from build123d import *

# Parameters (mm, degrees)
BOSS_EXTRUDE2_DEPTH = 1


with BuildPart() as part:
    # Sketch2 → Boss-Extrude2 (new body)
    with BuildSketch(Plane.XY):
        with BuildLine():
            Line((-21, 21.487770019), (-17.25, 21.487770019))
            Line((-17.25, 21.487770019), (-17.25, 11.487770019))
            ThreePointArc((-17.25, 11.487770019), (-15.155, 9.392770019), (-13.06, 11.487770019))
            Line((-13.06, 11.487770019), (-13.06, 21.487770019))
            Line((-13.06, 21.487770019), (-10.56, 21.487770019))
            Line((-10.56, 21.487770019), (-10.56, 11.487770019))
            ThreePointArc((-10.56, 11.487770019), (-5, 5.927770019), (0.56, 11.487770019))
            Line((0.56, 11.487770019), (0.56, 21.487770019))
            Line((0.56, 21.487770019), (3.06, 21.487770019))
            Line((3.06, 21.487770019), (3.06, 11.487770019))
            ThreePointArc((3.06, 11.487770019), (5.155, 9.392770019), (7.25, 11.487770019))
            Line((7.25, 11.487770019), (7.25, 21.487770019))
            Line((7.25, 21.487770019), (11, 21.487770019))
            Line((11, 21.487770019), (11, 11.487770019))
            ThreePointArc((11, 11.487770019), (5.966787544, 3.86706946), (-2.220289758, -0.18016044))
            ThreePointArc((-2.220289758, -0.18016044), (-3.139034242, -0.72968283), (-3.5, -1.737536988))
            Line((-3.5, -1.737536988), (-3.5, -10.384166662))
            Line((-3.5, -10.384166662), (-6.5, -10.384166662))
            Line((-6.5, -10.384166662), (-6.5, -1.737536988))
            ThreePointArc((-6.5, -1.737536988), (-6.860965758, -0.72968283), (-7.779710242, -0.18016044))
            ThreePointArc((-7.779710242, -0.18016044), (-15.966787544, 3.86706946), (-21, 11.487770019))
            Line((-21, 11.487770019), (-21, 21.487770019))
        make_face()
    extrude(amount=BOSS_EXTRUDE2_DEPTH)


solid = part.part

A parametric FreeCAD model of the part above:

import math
import FreeCAD as App
import Part
import Sketcher
from FreeCAD import Vector

doc = App.newDocument("Part")
body = doc.addObject("PartDesign::Body", "Body")

# Sketch on XY plane
sketch1 = doc.addObject("Sketcher::SketchObject", "Sketch")
body.addObject(sketch1)
sketch1.AttachmentSupport = (doc.XY_Plane, [""])
sketch1.MapMode = "FlatFace"
sketch1.addGeometry(Part.LineSegment(Vector(-17.2, 21.5, 0), Vector(-21, 21.5, 0)), False)
sketch1.addGeometry(Part.LineSegment(Vector(-21, 21.5, 0), Vector(-21, 11.5, 0)), False)
sketch1.addGeometry(Part.ArcOfCircle(Part.Circle(Vector(-4.4, 17, 0), Vector(0, 0, 1), 17.5), math.radians(-162), math.radians(-101)), False)
sketch1.addGeometry(Part.ArcOfCircle(Part.Circle(Vector(-8.1, -1.7, 0), Vector(0, 0, 1), 1.6), math.radians(0), math.radians(79)), False)
sketch1.addGeometry(Part.LineSegment(Vector(-6.5, -1.7, 0), Vector(-6.5, -10.4, 0)), False)
sketch1.addGeometry(Part.LineSegment(Vector(-6.5, -10.4, 0), Vector(-3.5, -10.4, 0)), False)
sketch1.addGeometry(Part.LineSegment(Vector(-3.5, -10.4, 0), Vector(-3.5, -1.7, 0)), False)
sketch1.addGeometry(Part.ArcOfCircle(Part.Circle(Vector(-1.9, -1.7, 0), Vector(0, 0, 1), 1.6), math.radians(101), math.radians(180)), False)
sketch1.addGeometry(Part.ArcOfCircle(Part.Circle(Vector(-5.6, 17, 0), Vector(0, 0, 1), 17.5), math.radians(-79), math.radians(-18)), False)
sketch1.addGeometry(Part.LineSegment(Vector(11, 11.5, 0), Vector(11, 21.5, 0)), False)
sketch1.addGeometry(Part.LineSegment(Vector(11, 21.5, 0), Vector(7.2, 21.5, 0)), False)
sketch1.addGeometry(Part.LineSegment(Vector(7.2, 21.5, 0), Vector(7.2, 11.5, 0)), False)
sketch1.addGeometry(Part.ArcOfCircle(Part.Circle(Vector(5.2, 11.5, 0), Vector(0, 0, 1), 2.1), math.radians(180), math.radians(360)), False)
sketch1.addGeometry(Part.LineSegment(Vector(3.1, 11.5, 0), Vector(3.1, 21.5, 0)), False)
sketch1.addGeometry(Part.LineSegment(Vector(3.1, 21.5, 0), Vector(0.6, 21.5, 0)), False)
sketch1.addGeometry(Part.LineSegment(Vector(0.6, 21.5, 0), Vector(0.6, 11.5, 0)), False)
sketch1.addGeometry(Part.ArcOfCircle(Part.Circle(Vector(-5, 11.5, 0), Vector(0, 0, 1), 5.6), math.radians(180), math.radians(360)), False)
sketch1.addGeometry(Part.LineSegment(Vector(-10.6, 11.5, 0), Vector(-10.6, 21.5, 0)), False)
sketch1.addGeometry(Part.LineSegment(Vector(-10.6, 21.5, 0), Vector(-13.1, 21.5, 0)), False)
sketch1.addGeometry(Part.LineSegment(Vector(-13.1, 21.5, 0), Vector(-13.1, 11.5, 0)), False)
sketch1.addGeometry(Part.ArcOfCircle(Part.Circle(Vector(-15.2, 11.5, 0), Vector(0, 0, 1), 2.1), math.radians(180), math.radians(360)), False)
sketch1.addGeometry(Part.LineSegment(Vector(-17.2, 11.5, 0), Vector(-17.2, 21.5, 0)), False)
sketch1.addConstraint(Sketcher.Constraint("Coincident", 0, 2, 1, 1))
sketch1.addConstraint(Sketcher.Constraint("Coincident", 1, 2, 2, 1))
sketch1.addConstraint(Sketcher.Constraint("Tangent", 2, 2, 3, 2))
sketch1.addConstraint(Sketcher.Constraint("Tangent", 3, 1, 4, 1))
sketch1.addConstraint(Sketcher.Constraint("Coincident", 4, 2, 5, 1))
sketch1.addConstraint(Sketcher.Constraint("Coincident", 5, 2, 6, 1))
sketch1.addConstraint(Sketcher.Constraint("Tangent", 6, 2, 7, 2))
sketch1.addConstraint(Sketcher.Constraint("Tangent", 7, 1, 8, 1))
sketch1.addConstraint(Sketcher.Constraint("Coincident", 8, 2, 9, 1))
sketch1.addConstraint(Sketcher.Constraint("Coincident", 9, 2, 10, 1))
sketch1.addConstraint(Sketcher.Constraint("Coincident", 10, 2, 11, 1))
sketch1.addConstraint(Sketcher.Constraint("Tangent", 11, 2, 12, 2))
sketch1.addConstraint(Sketcher.Constraint("Tangent", 12, 1, 13, 1))
sketch1.addConstraint(Sketcher.Constraint("Coincident", 13, 2, 14, 1))
sketch1.addConstraint(Sketcher.Constraint("Coincident", 14, 2, 15, 1))
sketch1.addConstraint(Sketcher.Constraint("Tangent", 15, 2, 16, 2))
sketch1.addConstraint(Sketcher.Constraint("Tangent", 16, 1, 17, 1))
sketch1.addConstraint(Sketcher.Constraint("Coincident", 17, 2, 18, 1))
sketch1.addConstraint(Sketcher.Constraint("Coincident", 18, 2, 19, 1))
sketch1.addConstraint(Sketcher.Constraint("Tangent", 19, 2, 20, 2))
sketch1.addConstraint(Sketcher.Constraint("Tangent", 20, 1, 21, 1))
sketch1.addConstraint(Sketcher.Constraint("Coincident", 21, 2, 0, 1))
sketch1.addConstraint(Sketcher.Constraint("Horizontal", 0))
sketch1.addConstraint(Sketcher.Constraint("Vertical", 1))
sketch1.addConstraint(Sketcher.Constraint("Vertical", 4))
sketch1.addConstraint(Sketcher.Constraint("Horizontal", 5))
sketch1.addConstraint(Sketcher.Constraint("Vertical", 6))
sketch1.addConstraint(Sketcher.Constraint("Vertical", 9))
sketch1.addConstraint(Sketcher.Constraint("Horizontal", 10))
sketch1.addConstraint(Sketcher.Constraint("Vertical", 11))
sketch1.addConstraint(Sketcher.Constraint("Vertical", 13))
sketch1.addConstraint(Sketcher.Constraint("Horizontal", 14))
sketch1.addConstraint(Sketcher.Constraint("Vertical", 15))
sketch1.addConstraint(Sketcher.Constraint("Vertical", 17))
sketch1.addConstraint(Sketcher.Constraint("Horizontal", 18))
sketch1.addConstraint(Sketcher.Constraint("Vertical", 19))
sketch1.addConstraint(Sketcher.Constraint("Vertical", 21))
sketch1.addConstraint(Sketcher.Constraint("Equal", 3, 7))
sketch1.addConstraint(Sketcher.Constraint("Equal", 2, 8))
sketch1.addConstraint(Sketcher.Constraint("Equal", 12, 20))
sketch1.addConstraint(Sketcher.Constraint("Horizontal", 3, 3, 7, 3))
sketch1.addConstraint(Sketcher.Constraint("Horizontal", 2, 3, 8, 3))
sketch1.addConstraint(Sketcher.Constraint("Horizontal", 12, 3, 16, 3))
sketch1.addConstraint(Sketcher.Constraint("Horizontal", 16, 3, 20, 3))
sketch1.addConstraint(Sketcher.Constraint("Horizontal", 20, 3, 1, 2))
sketch1.addConstraint(Sketcher.Constraint("Horizontal", 1, 2, 8, 2))
sketch1.addConstraint(Sketcher.Constraint("Horizontal", 0, 2, 9, 2))
sketch1.addConstraint(Sketcher.Constraint("Horizontal", 10, 2, 13, 2))
sketch1.addConstraint(Sketcher.Constraint("Horizontal", 14, 2, 17, 2))
sketch1.addConstraint(Sketcher.Constraint("Equal", 0, 10))
sketch1.addConstraint(Sketcher.Constraint("Equal", 14, 18))
sketch1.addConstraint(Sketcher.Constraint("Radius", 2, 17.5))
sketch1.addConstraint(Sketcher.Constraint("DistanceX", 5, 1, 5, 2, 3.0))
sketch1.addConstraint(Sketcher.Constraint("DistanceY", 1, 2, 1, 1, 10.0))
sketch1.addConstraint(Sketcher.Constraint("Radius", 16, 5.56))
sketch1.addConstraint(Sketcher.Constraint("DistanceX", 14, 2, 14, 1, 2.5))
sketch1.addConstraint(Sketcher.Constraint("DistanceX", 16, 3, -1, 1, 5.0))
sketch1.addConstraint(Sketcher.Constraint("DistanceX", 0, 2, -1, 1, 21.0))
sketch1.addConstraint(Sketcher.Constraint("Radius", 12, 2.095))
sketch1.addConstraint(Sketcher.Constraint("Radius", 3, 1.5875))
sketch1.addConstraint(Sketcher.Constraint("DistanceY", 12, 3, 2, 3, 5.5))
sketch1.addConstraint(Sketcher.Constraint("DistanceY", 4, 2, 4, 1, 8.64663))
sketch1.addConstraint(Sketcher.Constraint("DistanceY", -1, 1, 2, 3, 16.98777))
pad1 = doc.addObject("PartDesign::Pad", "Pad")
body.addObject(pad1)
pad1.Profile = sketch1
pad1.Length = 1

doc.recompute()
